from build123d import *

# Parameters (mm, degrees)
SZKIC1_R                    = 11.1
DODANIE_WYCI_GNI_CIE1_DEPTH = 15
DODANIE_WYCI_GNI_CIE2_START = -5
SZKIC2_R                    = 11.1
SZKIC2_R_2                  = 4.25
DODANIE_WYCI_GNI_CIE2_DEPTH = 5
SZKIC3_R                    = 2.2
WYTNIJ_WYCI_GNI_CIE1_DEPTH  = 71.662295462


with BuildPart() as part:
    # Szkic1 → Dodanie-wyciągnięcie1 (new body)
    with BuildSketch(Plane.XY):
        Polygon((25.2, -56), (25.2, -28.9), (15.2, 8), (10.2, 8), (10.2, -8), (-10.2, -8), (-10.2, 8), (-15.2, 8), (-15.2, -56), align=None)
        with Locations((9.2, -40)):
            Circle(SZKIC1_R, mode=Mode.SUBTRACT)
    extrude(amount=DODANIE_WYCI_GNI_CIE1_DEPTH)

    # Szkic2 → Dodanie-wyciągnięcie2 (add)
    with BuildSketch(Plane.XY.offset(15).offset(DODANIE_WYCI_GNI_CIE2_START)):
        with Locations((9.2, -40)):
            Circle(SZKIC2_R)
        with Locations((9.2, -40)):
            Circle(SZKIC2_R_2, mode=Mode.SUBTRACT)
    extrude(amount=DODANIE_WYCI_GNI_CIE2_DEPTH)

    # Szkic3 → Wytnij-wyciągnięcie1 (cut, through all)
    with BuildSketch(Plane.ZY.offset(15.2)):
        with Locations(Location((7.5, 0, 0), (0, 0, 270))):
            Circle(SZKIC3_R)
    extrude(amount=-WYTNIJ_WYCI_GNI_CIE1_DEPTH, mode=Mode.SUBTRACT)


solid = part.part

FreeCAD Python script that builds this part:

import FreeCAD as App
import Part
import Sketcher

doc = App.newDocument("Part")
body = doc.addObject("PartDesign::Body", "Body")

sketch1 = body.newObject("Sketcher::SketchObject", "Sketch")
sketch1.AttachmentSupport = (doc.getObject("XY_Plane"), [""])
sketch1.MapMode = "FlatFace"
sketch1.addGeometry(Part.LineSegment(App.Vector(25, -56, 0), App.Vector(25, -29, 0)), False)
sketch1.addGeometry(Part.LineSegment(App.Vector(25, -29, 0), App.Vector(15, 8, 0)), False)
sketch1.addGeometry(Part.LineSegment(App.Vector(15, 8, 0), App.Vector(10, 8, 0)), False)
sketch1.addGeometry(Part.LineSegment(App.Vector(10, 8, 0), App.Vector(10, -8, 0)), False)
sketch1.addGeometry(Part.LineSegment(App.Vector(10, -8, 0), App.Vector(-10, -8, 0)), False)
sketch1.addGeometry(Part.LineSegment(App.Vector(-10, -8, 0), App.Vector(-10, 8, 0)), False)
sketch1.addGeometry(Part.LineSegment(App.Vector(-10, 8, 0), App.Vector(-15, 8, 0)), False)
sketch1.addGeometry(Part.LineSegment(App.Vector(-15, 8, 0), App.Vector(-15, -56, 0)), False)
sketch1.addGeometry(Part.LineSegment(App.Vector(-15, -56, 0), App.Vector(25, -56, 0)), False)
sketch1.addGeometry(Part.Circle(App.Vector(9, -40, 0), App.Vector(0, 0, 1), 11), False)
sketch1.addConstraint(Sketcher.Constraint("Coincident", 0, 2, 1, 1))
sketch1.addConstraint(Sketcher.Constraint("Coincident", 1, 2, 2, 1))
sketch1.addConstraint(Sketcher.Constraint("Coincident", 2, 2, 3, 1))
sketch1.addConstraint(Sketcher.Constraint("Coincident", 3, 2, 4, 1))
sketch1.addConstraint(Sketcher.Constraint("Coincident", 4, 2, 5, 1))
sketch1.addConstraint(Sketcher.Constraint("Coincident", 5, 2, 6, 1))
sketch1.addConstraint(Sketcher.Constraint("Coincident", 6, 2, 7, 1))
sketch1.addConstraint(Sketcher.Constraint("Coincident", 7, 2, 8, 1))
sketch1.addConstraint(Sketcher.Constraint("Coincident", 8, 2, 0, 1))
sketch1.addConstraint(Sketcher.Constraint("Vertical", 0))
sketch1.addConstraint(Sketcher.Constraint("Horizontal", 2))
sketch1.addConstraint(Sketcher.Constraint("Vertical", 3))
sketch1.addConstraint(Sketcher.Constraint("Horizontal", 4))
sketch1.addConstraint(Sketcher.Constraint("Vertical", 5))
sketch1.addConstraint(Sketcher.Constraint("Horizontal", 6))
sketch1.addConstraint(Sketcher.Constraint("Vertical", 7))
sketch1.addConstraint(Sketcher.Constraint("Horizontal", 8))
sketch1.addConstraint(Sketcher.Constraint("Symmetric", 2, 2, 4, 2, -1, 1))
sketch1.addConstraint(Sketcher.Constraint("Symmetric", 1, 2, 6, 2, -2))
sketch1.addConstraint(Sketcher.Constraint("Diameter", 9, 22.2))
sketch1.addConstraint(Sketcher.Constraint("DistanceX", 2, 2, 2, 1, 5.0))
sketch1.addConstraint(Sketcher.Constraint("DistanceY", 3, 2, 3, 1, 16.0))
sketch1.addConstraint(Sketcher.Constraint("DistanceY", 7, 2, 7, 1, 64.0))
sketch1.addConstraint(Sketcher.Constraint("DistanceX", 4, 2, 4, 1, 20.4))
sketch1.addConstraint(Sketcher.Constraint("DistanceX", 8, 1, 8, 2, 40.4))
sketch1.addConstraint(Sketcher.Constraint("DistanceY", 0, 1, 0, 2, 27.1))
sketch1.addConstraint(Sketcher.Constraint("DistanceY", 9, 3, -1, 1, 40.0))
sketch1.addConstraint(Sketcher.Constraint("DistanceX", 9, 3, 0, 2, 16.0))
pad1 = body.newObject("PartDesign::Pad", "Pad")
pad1.Profile = sketch1
pad1.Length = 15

sketch2 = body.newObject("Sketcher::SketchObject", "Sketch001")
sketch2.AttachmentSupport = (doc.getObject("XY_Plane"), [""])
sketch2.MapMode = "FlatFace"
sketch2.AttachmentOffset = App.Placement(App.Vector(0, 0, 10), App.Rotation())
sketch2.addGeometry(Part.Circle(App.Vector(9.2, -40, 0), App.Vector(0, 0, 1), 11.1), False)
sketch2.addGeometry(Part.Circle(App.Vector(9.2, -40, 0), App.Vector(0, 0, 1), 4.2), False)
sketch2.addConstraint(Sketcher.Constraint("Coincident", 1, 3, 0, 3))
sketch2.addConstraint(Sketcher.Constraint("Diameter", 0, 22.2))
sketch2.addConstraint(Sketcher.Constraint("Diameter", 1, 8.5))
sketch2.addConstraint(Sketcher.Constraint("DistanceY", 0, 3, -1, 1, 40.0))
sketch2.addConstraint(Sketcher.Constraint("DistanceX", -1, 1, 0, 3, 9.2))
pad2 = body.newObject("PartDesign::Pad", "Pad001")
pad2.Profile = sketch2
pad2.Length = 5

sketch3 = body.newObject("Sketcher::SketchObject", "Sketch002")
sketch3.AttachmentSupport = (doc.getObject("YZ_Plane"), [""])
sketch3.MapMode = "FlatFace"
sketch3.AttachmentOffset = App.Placement(App.Vector(0, 0, -15.2), App.Rotation())
sketch3.addGeometry(Part.Circle(App.Vector(0, 7.5, 0), App.Vector(0, 0, 1), 2.2), False)
sketch3.addConstraint(Sketcher.Constraint("PointOnObject", 0, 3, -2))
sketch3.addConstraint(Sketcher.Constraint("Diameter", 0, 4.4))
sketch3.addConstraint(Sketcher.Constraint("DistanceY", -1, 1, 0, 3, 7.5))
pocket1 = body.newObject("PartDesign::Pocket", "Pocket")
pocket1.Profile = sketch3
pocket1.Type = "ThroughAll"
pocket1.Reversed = True

doc.recompute()
